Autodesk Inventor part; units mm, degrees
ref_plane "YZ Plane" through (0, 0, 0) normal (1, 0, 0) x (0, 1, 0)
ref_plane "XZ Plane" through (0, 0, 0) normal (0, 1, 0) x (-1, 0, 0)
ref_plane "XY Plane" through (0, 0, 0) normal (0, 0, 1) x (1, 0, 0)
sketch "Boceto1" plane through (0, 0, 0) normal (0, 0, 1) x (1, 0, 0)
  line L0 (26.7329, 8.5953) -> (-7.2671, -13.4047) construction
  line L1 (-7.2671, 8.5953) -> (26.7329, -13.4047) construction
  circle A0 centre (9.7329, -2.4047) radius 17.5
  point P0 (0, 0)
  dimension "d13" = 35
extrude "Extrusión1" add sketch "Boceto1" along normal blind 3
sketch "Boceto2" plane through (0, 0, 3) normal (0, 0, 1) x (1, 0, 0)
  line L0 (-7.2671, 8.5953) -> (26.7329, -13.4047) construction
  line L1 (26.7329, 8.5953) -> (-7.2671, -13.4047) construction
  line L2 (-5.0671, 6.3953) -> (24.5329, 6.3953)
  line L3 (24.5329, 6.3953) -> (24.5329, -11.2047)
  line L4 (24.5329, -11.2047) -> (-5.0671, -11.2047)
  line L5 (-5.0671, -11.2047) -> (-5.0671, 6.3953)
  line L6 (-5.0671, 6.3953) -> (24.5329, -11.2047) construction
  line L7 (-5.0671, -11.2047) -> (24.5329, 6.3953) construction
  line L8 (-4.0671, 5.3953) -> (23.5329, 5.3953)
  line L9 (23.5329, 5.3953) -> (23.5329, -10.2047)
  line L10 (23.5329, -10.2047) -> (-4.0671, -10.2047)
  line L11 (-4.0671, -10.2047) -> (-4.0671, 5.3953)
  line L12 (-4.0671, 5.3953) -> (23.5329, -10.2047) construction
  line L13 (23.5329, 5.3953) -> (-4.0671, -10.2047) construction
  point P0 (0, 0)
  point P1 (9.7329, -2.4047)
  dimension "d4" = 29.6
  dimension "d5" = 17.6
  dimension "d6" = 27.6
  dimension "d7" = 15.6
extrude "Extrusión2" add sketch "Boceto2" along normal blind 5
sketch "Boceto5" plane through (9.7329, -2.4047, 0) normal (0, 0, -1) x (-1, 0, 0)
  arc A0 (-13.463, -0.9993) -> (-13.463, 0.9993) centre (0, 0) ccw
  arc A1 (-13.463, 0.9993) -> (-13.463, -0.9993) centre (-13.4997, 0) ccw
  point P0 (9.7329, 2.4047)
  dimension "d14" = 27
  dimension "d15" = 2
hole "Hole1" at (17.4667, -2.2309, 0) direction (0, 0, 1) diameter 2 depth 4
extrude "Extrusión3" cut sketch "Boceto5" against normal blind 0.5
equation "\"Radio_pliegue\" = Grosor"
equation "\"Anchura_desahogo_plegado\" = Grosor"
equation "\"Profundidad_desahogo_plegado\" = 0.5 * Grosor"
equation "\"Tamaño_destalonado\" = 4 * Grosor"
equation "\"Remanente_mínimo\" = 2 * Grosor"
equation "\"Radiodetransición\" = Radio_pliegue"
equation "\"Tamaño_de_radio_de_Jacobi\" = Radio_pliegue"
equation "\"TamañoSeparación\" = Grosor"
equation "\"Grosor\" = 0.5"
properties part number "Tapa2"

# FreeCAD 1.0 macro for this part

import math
import FreeCAD as App
import Part
import Sketcher
Q = App.Units.Quantity


def add_polygon(sketch, points):
    """Adds a closed chain of lines whose ends are joined by coincident constraints."""
    first, n = sketch.GeometryCount, len(points)
    for a, b in zip(points, points[1:] + points[:1]):
        sketch.addGeometry(Part.LineSegment(App.Vector(*a, 0), App.Vector(*b, 0)), False)
    for i in range(n):
        sketch.addConstraint(Sketcher.Constraint("Coincident", first + i, 2, first + (i + 1) % n, 1))

doc = App.newDocument("Part")
body = doc.addObject("PartDesign::Body", "Body")

# Sketch on XY plane
sketch1 = body.newObject("Sketcher::SketchObject", "Sketch")
sketch1.AttachmentSupport = (doc.getObject("XY_Plane"), [""])
sketch1.MapMode = "FlatFace"
sketch1.addGeometry(Part.Circle(App.Vector(9.7329, -2.4047, 0), App.Vector(0, 0, 1), 17.5), False)
sketch1.addConstraint(Sketcher.Constraint("Diameter", 0, Q("35 mm")))
sketch1.addConstraint(Sketcher.Constraint("DistanceX", -1, 1, 0, 3, Q("9.733 mm")))
sketch1.addConstraint(Sketcher.Constraint("DistanceY", 0, 3, -1, 1, Q("2.4047 mm")))
pad1 = body.newObject("PartDesign::Pad", "Pad")
pad1.Profile = sketch1
pad1.Length = 3

# Sketch on XY plane
sketch2 = body.newObject("Sketcher::SketchObject", "Sketch001")
sketch2.AttachmentSupport = (doc.getObject("XY_Plane"), [""])
sketch2.MapMode = "FlatFace"
sketch2.AttachmentOffset = App.Placement(App.Vector(0, 0, 3), App.Rotation())
add_polygon(sketch2, [(24.5329, 6.3953), (-5.0671, 6.3953), (-5.0671, -11.2047), (24.5329, -11.2047)])  # lines 0-3
add_polygon(sketch2, [(-4.0671, -10.2047), (-4.0671, 5.3953), (23.5329, 5.3953), (23.5329, -10.2047)])  # lines 4-7
sketch2.addConstraint(Sketcher.Constraint("Horizontal", 0))
sketch2.addConstraint(Sketcher.Constraint("Vertical", 1))
sketch2.addConstraint(Sketcher.Constraint("Horizontal", 2))
sketch2.addConstraint(Sketcher.Constraint("Vertical", 3))
sketch2.addConstraint(Sketcher.Constraint("Vertical", 4))
sketch2.addConstraint(Sketcher.Constraint("Horizontal", 5))
sketch2.addConstraint(Sketcher.Constraint("Vertical", 6))
sketch2.addConstraint(Sketcher.Constraint("Horizontal", 7))
sketch2.addConstraint(Sketcher.Constraint("DistanceX", 0, 2, 0, 1, Q("29.6 mm")))
sketch2.addConstraint(Sketcher.Constraint("DistanceX", 5, 1, 5, 2, Q("27.6 mm")))
sketch2.addConstraint(Sketcher.Constraint("DistanceY", 1, 2, 1, 1, Q("17.6 mm")))
sketch2.addConstraint(Sketcher.Constraint("DistanceY", 4, 1, 4, 2, Q("15.6 mm")))
sketch2.addConstraint(Sketcher.Constraint("DistanceX", 0, 2, 4, 2, Q("1 mm")))
sketch2.addConstraint(Sketcher.Constraint("DistanceY", 4, 2, 0, 2, Q("1 mm")))
sketch2.addConstraint(Sketcher.Constraint("DistanceX", 0, 2, -1, 1, Q("5.067 mm")))
sketch2.addConstraint(Sketcher.Constraint("DistanceY", -1, 1, 0, 2, Q("6.3953 mm")))
pad2 = body.newObject("PartDesign::Pad", "Pad001")
pad2.Profile = sketch2
pad2.Length = 5

# Sketch on XY plane
sketch3 = body.newObject("Sketcher::SketchObject", "Sketch002")
sketch3.AttachmentSupport = (doc.getObject("XY_Plane"), [""])
sketch3.MapMode = "FlatFace"
sketch3.addGeometry(Part.Circle(App.Vector(17.4667, -2.2309, 0), App.Vector(0, 0, 1), 1), False)
sketch3.addConstraint(Sketcher.Constraint("Diameter", 0, Q("2 mm")))
sketch3.addConstraint(Sketcher.Constraint("DistanceY", 0, 3, -1, 1, Q("2.231 mm")))
sketch3.addConstraint(Sketcher.Constraint("DistanceX", -1, 1, 0, 3, Q("17.4667 mm")))
doc.recompute()
hole = body.newObject("PartDesign::Hole", "Hole")
hole.Profile = sketch3
hole.ThreadType = "None"
hole.Diameter = 2
hole.DepthType = "Dimension"
hole.Depth = 4
hole.DrillPoint = "Flat"
hole.Reversed = True

# Sketch on XY plane
sketch4 = body.newObject("Sketcher::SketchObject", "Sketch003")
sketch4.AttachmentSupport = (doc.getObject("XY_Plane"), [""])
sketch4.MapMode = "FlatFace"
sketch4.addGeometry(Part.ArcOfCircle(Part.Circle(App.Vector(23.2326, -2.4047, 0), App.Vector(0, 0, 1), 0.999974), math.radians(-92.103283), math.radians(92.103283)), False)
sketch4.addGeometry(Part.ArcOfCircle(Part.Circle(App.Vector(9.7329, -2.4047, 0), App.Vector(0, 0, 1), 13.500036), math.radians(4.245032), math.radians(355.754968)), False)
sketch4.addConstraint(Sketcher.Constraint("Coincident", 0, 1, 1, 2))
sketch4.addConstraint(Sketcher.Constraint("Coincident", 1, 1, 0, 2))
sketch4.addConstraint(Sketcher.Constraint("Horizontal", 0, 3, 1, 3))
sketch4.addConstraint(Sketcher.Constraint("Radius", 0, Q("1 mm")))
sketch4.addConstraint(Sketcher.Constraint("Radius", 1, Q("13.5 mm")))
sketch4.addConstraint(Sketcher.Constraint("DistanceX", -1, 1, 1, 3, Q("9.733 mm")))
sketch4.addConstraint(Sketcher.Constraint("DistanceY", 0, 1, -1, 1, Q("3.404 mm")))
sketch4.addConstraint(Sketcher.Constraint("DistanceX", -1, 1, 0, 3, Q("23.2326 mm")))
pocket1 = body.newObject("PartDesign::Pocket", "Pocket")
pocket1.Profile = sketch4
pocket1.Length = 0.5
pocket1.Reversed = True

doc.recompute()
